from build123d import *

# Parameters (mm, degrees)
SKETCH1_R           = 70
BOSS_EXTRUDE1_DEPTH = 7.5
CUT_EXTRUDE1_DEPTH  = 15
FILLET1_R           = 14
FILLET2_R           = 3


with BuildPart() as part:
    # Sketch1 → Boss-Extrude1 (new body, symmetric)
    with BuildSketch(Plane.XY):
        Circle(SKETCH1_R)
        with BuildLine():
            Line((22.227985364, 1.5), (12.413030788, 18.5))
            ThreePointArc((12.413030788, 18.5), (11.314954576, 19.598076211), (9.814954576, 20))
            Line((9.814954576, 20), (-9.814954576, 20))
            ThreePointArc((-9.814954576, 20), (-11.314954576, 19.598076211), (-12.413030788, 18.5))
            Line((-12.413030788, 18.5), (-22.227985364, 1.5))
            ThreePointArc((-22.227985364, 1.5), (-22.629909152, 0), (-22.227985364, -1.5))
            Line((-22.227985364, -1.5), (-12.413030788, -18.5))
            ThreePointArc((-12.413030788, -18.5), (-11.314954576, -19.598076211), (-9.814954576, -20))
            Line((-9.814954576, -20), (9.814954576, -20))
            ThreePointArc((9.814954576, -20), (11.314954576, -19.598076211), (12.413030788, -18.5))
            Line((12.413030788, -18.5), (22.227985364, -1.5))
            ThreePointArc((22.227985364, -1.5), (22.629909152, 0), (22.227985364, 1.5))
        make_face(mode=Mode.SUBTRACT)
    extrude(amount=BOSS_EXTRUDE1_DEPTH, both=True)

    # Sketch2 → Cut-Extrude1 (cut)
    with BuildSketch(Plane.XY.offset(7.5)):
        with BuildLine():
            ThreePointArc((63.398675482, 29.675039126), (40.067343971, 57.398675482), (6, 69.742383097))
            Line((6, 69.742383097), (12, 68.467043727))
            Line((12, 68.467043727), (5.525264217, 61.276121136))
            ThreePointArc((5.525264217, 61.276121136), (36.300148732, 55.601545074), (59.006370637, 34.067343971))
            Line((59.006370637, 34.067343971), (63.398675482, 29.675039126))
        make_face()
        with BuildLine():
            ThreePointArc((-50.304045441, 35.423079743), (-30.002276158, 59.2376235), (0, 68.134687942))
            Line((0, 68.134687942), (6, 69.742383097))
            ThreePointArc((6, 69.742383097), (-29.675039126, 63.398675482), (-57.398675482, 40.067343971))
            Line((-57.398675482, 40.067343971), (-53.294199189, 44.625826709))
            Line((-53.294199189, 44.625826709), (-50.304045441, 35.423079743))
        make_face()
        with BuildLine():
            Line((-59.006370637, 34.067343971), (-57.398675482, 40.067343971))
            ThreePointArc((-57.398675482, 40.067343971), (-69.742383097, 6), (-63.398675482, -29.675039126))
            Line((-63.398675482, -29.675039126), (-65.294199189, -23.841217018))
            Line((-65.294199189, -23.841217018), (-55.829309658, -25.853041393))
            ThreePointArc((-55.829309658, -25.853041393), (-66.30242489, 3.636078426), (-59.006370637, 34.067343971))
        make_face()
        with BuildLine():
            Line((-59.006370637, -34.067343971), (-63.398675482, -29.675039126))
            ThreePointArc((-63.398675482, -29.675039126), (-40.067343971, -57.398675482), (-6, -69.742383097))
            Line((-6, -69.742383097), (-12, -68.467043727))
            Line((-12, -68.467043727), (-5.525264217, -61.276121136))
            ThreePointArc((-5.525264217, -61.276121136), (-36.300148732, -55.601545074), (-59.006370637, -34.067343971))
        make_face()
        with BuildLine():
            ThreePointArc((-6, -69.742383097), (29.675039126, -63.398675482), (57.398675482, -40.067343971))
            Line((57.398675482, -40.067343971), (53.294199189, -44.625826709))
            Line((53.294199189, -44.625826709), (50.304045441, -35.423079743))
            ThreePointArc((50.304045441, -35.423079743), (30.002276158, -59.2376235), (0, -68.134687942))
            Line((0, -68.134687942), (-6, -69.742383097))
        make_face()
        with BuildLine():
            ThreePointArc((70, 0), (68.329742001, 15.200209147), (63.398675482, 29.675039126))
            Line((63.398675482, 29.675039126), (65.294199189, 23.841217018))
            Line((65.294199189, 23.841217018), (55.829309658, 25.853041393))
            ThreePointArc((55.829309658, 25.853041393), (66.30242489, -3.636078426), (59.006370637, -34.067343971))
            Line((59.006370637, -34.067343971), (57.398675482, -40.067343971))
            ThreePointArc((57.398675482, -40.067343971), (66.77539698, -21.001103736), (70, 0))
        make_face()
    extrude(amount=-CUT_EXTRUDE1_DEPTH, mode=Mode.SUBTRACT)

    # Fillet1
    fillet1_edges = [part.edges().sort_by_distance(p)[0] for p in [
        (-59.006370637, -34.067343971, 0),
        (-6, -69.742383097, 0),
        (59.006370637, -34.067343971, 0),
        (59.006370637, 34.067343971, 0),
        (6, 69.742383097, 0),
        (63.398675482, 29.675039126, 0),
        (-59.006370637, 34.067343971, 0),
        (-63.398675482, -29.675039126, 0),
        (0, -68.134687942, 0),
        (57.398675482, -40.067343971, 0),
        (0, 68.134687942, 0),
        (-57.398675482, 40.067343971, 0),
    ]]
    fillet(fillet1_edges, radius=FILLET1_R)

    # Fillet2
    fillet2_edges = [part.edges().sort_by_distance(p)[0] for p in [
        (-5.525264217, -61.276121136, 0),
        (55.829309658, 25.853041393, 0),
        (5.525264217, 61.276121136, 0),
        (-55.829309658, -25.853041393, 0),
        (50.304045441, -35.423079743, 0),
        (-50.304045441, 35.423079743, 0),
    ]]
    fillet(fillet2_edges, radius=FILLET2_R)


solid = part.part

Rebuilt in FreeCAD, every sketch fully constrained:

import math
import FreeCAD as App
import Part
import Sketcher
from FreeCAD import Vector
Q = App.Units.Quantity


def edges_at(feature, points):
    """Names of the edges that pass closest to the given points."""
    edges = feature.Shape.Edges
    near = lambda p: min(range(len(edges)), key=lambda i: edges[i].distToShape(Part.Vertex(*p))[0])
    return sorted({f"Edge{near(p) + 1}" for p in points})

doc = App.newDocument("Part")
params = doc.addObject("Spreadsheet::Sheet", "Params")
for row, (alias, value) in enumerate([
    ("sketch1_diameter", "140 mm"),
    ("sketch1_radius", "3 mm"),
    ("pad1_length", "15 mm"),
    ("sketch2_radius", "70 mm"),
    ("pocket1_length", "15 mm"),
    ("fillet_radius", "14 mm"),
    ("fillet2_radius", "3 mm"),
], start=1):
    params.set(f"A{row}", alias)
    params.set(f"B{row}", "=" + value)
    params.setAlias(f"B{row}", alias)

body = doc.addObject("PartDesign::Body", "Body")

# Sketch on XY plane
sketch1 = doc.addObject("Sketcher::SketchObject", "Sketch")
body.addObject(sketch1)
sketch1.AttachmentSupport = (doc.XY_Plane, [""])
sketch1.MapMode = "FlatFace"
sketch1.addGeometry(Part.Circle(Vector(0, 0, 0), Vector(0, 0, 1), 70), False)
sketch1.addGeometry(Part.LineSegment(Vector(12.413031, 18.5, 0), Vector(22.227985, 1.5, 0)), False)
sketch1.addGeometry(Part.ArcOfCircle(Part.Circle(Vector(19.629909, 0, 0), Vector(0, 0, 1), 3), math.radians(-30), math.radians(30)), False)
sketch1.addGeometry(Part.LineSegment(Vector(22.227985, -1.5, 0), Vector(12.413031, -18.5, 0)), False)
sketch1.addGeometry(Part.ArcOfCircle(Part.Circle(Vector(9.814955, -17, 0), Vector(0, 0, 1), 3), math.radians(-90), math.radians(-30)), False)
sketch1.addGeometry(Part.LineSegment(Vector(9.814955, -20, 0), Vector(-9.814955, -20, 0)), False)
sketch1.addGeometry(Part.ArcOfCircle(Part.Circle(Vector(-9.814955, -17, 0), Vector(0, 0, 1), 3), math.radians(-150), math.radians(-90)), False)
sketch1.addGeometry(Part.LineSegment(Vector(-12.413031, -18.5, 0), Vector(-22.227985, -1.5, 0)), False)
sketch1.addGeometry(Part.ArcOfCircle(Part.Circle(Vector(-19.629909, 0, 0), Vector(0, 0, 1), 3), math.radians(150), math.radians(210)), False)
sketch1.addGeometry(Part.LineSegment(Vector(-22.227985, 1.5, 0), Vector(-12.413031, 18.5, 0)), False)
sketch1.addGeometry(Part.ArcOfCircle(Part.Circle(Vector(-9.814955, 17, 0), Vector(0, 0, 1), 3), math.radians(90), math.radians(150)), False)
sketch1.addGeometry(Part.LineSegment(Vector(-9.814955, 20, 0), Vector(9.814955, 20, 0)), False)
sketch1.addGeometry(Part.ArcOfCircle(Part.Circle(Vector(9.814955, 17, 0), Vector(0, 0, 1), 3), math.radians(30), math.radians(90)), False)
sketch1.addConstraint(Sketcher.Constraint("Tangent", 1, 2, 2, 2))
sketch1.addConstraint(Sketcher.Constraint("Tangent", 2, 1, 3, 1))
sketch1.addConstraint(Sketcher.Constraint("Tangent", 3, 2, 4, 2))
sketch1.addConstraint(Sketcher.Constraint("Tangent", 4, 1, 5, 1))
sketch1.addConstraint(Sketcher.Constraint("Tangent", 5, 2, 6, 2))
sketch1.addConstraint(Sketcher.Constraint("Tangent", 6, 1, 7, 1))
sketch1.addConstraint(Sketcher.Constraint("Tangent", 7, 2, 8, 2))
sketch1.addConstraint(Sketcher.Constraint("Tangent", 8, 1, 9, 1))
sketch1.addConstraint(Sketcher.Constraint("Tangent", 9, 2, 10, 2))
sketch1.addConstraint(Sketcher.Constraint("Tangent", 10, 1, 11, 1))
sketch1.addConstraint(Sketcher.Constraint("Tangent", 11, 2, 12, 2))
sketch1.addConstraint(Sketcher.Constraint("Tangent", 12, 1, 1, 1))
sketch1.addConstraint(Sketcher.Constraint("Horizontal", 5))
sketch1.addConstraint(Sketcher.Constraint("Horizontal", 11))
sketch1.addConstraint(Sketcher.Constraint("Coincident", 0, 3, -1, 1))
sketch1.addConstraint(Sketcher.Constraint("Equal", 2, 4))
sketch1.addConstraint(Sketcher.Constraint("Equal", 4, 6))
sketch1.addConstraint(Sketcher.Constraint("Equal", 6, 8))
sketch1.addConstraint(Sketcher.Constraint("Equal", 8, 10))
sketch1.addConstraint(Sketcher.Constraint("Equal", 10, 12))
sketch1.addConstraint(Sketcher.Constraint("Symmetric", 2, 3, 8, 3, -1, 1))
sketch1.addConstraint(Sketcher.Constraint("Symmetric", 4, 3, 10, 3, -1, 1))
sketch1.addConstraint(Sketcher.Constraint("Symmetric", 3, 2, 6, 1, -2))
sketch1.addConstraint(Sketcher.Constraint("Parallel", 1, 7))
sketch1.addConstraint(Sketcher.Constraint("Diameter", 0, 140.0))
sketch1.addConstraint(Sketcher.Constraint("Radius", 2, 3.0))
sketch1.addConstraint(Sketcher.Constraint("Angle", 1, Q("-60 deg")))
sketch1.addConstraint(Sketcher.Constraint("DistanceY", 4, 3, -1, 1, 17.0))
sketch1.addConstraint(Sketcher.Constraint("DistanceX", 5, 2, 5, 1, 19.629909))
sketch1.setExpression("Constraints[24]", "Params.sketch1_diameter")
sketch1.setExpression("Constraints[25]", "Params.sketch1_radius")
pad1 = doc.addObject("PartDesign::Pad", "Pad")
body.addObject(pad1)
pad1.Profile = sketch1
pad1.setExpression("Length", "Params.pad1_length")
pad1.Midplane = True

# Sketch on XY plane
sketch2 = doc.addObject("Sketcher::SketchObject", "Sketch001")
body.addObject(sketch2)
sketch2.AttachmentSupport = (doc.XY_Plane, [""])
sketch2.MapMode = "FlatFace"
sketch2.AttachmentOffset = App.Placement(Vector(0, 0, 7.5), App.Rotation())
sketch2.addGeometry(Part.ArcOfCircle(Part.Circle(Vector(0, 0, 0), Vector(0, 0, 1), 70), math.radians(25.0829), math.radians(85.0829)), False)
sketch2.addGeometry(Part.LineSegment(Vector(6, 69.742383, 0), Vector(12, 68.467044, 0)), False)
sketch2.addGeometry(Part.LineSegment(Vector(12, 68.467044, 0), Vector(5.525264, 61.276121, 0)), False)
sketch2.addGeometry(Part.ArcOfCircle(Part.Circle(Vector(11.344933, 6.55, 0), Vector(0, 0, 1), 55.034688), math.radians(30), math.radians(96.070118)), False)
sketch2.addGeometry(Part.LineSegment(Vector(59.006371, 34.067344, 0), Vector(63.398675, 29.675039, 0)), False)
sketch2.addGeometry(Part.ArcOfCircle(Part.Circle(Vector(0, 13.1, 0), Vector(0, 0, 1), 55.034688), math.radians(90), math.radians(156.070118)), False)
sketch2.addGeometry(Part.LineSegment(Vector(0, 68.134688, 0), Vector(6, 69.742383, 0)), False)
sketch2.addGeometry(Part.ArcOfCircle(Part.Circle(Vector(0, 0, 0), Vector(0, 0, 1), 70), math.radians(85.0829), math.radians(145.0829)), False)
sketch2.addGeometry(Part.LineSegment(Vector(-57.398675, 40.067344, 0), Vector(-53.294199, 44.625827, 0)), False)
sketch2.addGeometry(Part.LineSegment(Vector(-53.294199, 44.625827, 0), Vector(-50.304045, 35.42308, 0)), False)
sketch2.addGeometry(Part.LineSegment(Vector(-59.006371, 34.067344, 0), Vector(-57.398675, 40.067344, 0)), False)
sketch2.addGeometry(Part.ArcOfCircle(Part.Circle(Vector(0, 0, 0), Vector(0, 0, 1), 70), math.radians(145.0829), math.radians(205.0829)), False)
sketch2.addGeometry(Part.LineSegment(Vector(-63.398675, -29.675039, 0), Vector(-65.294199, -23.841217, 0)), False)
sketch2.addGeometry(Part.LineSegment(Vector(-65.294199, -23.841217, 0), Vector(-55.82931, -25.853041, 0)), False)
sketch2.addGeometry(Part.ArcOfCircle(Part.Circle(Vector(-11.344933, 6.55, 0), Vector(0, 0, 1), 55.034688), math.radians(150), math.radians(216.070118)), False)
sketch2.addGeometry(Part.LineSegment(Vector(-59.006371, -34.067344, 0), Vector(-63.398675, -29.675039, 0)), False)
sketch2.addGeometry(Part.ArcOfCircle(Part.Circle(Vector(0, 0, 0), Vector(0, 0, 1), 70), math.radians(-154.9171), math.radians(-94.9171)), False)
sketch2.addGeometry(Part.LineSegment(Vector(-6, -69.742383, 0), Vector(-12, -68.467044, 0)), False)
sketch2.addGeometry(Part.LineSegment(Vector(-12, -68.467044, 0), Vector(-5.525264, -61.276121, 0)), False)
sketch2.addGeometry(Part.ArcOfCircle(Part.Circle(Vector(-11.344933, -6.55, 0), Vector(0, 0, 1), 55.034688), math.radians(-150), math.radians(-83.929882)), False)
sketch2.addGeometry(Part.ArcOfCircle(Part.Circle(Vector(0, 0, 0), Vector(0, 0, 1), 70), math.radians(-94.9171), math.radians(-34.9171)), False)
sketch2.addGeometry(Part.LineSegment(Vector(57.398675, -40.067344, 0), Vector(53.294199, -44.625827, 0)), False)
sketch2.addGeometry(Part.LineSegment(Vector(53.294199, -44.625827, 0), Vector(50.304045, -35.42308, 0)), False)
sketch2.addGeometry(Part.ArcOfCircle(Part.Circle(Vector(0, -13.1, 0), Vector(0, 0, 1), 55.034688), math.radians(-90), math.radians(-23.929882)), False)
sketch2.addGeometry(Part.LineSegment(Vector(0, -68.134688, 0), Vector(-6, -69.742383, 0)), False)
sketch2.addGeometry(Part.ArcOfCircle(Part.Circle(Vector(0, 0, 0), Vector(0, 0, 1), 70), math.radians(0), math.radians(25.0829)), False)
sketch2.addGeometry(Part.LineSegment(Vector(63.398675, 29.675039, 0), Vector(65.294199, 23.841217, 0)), False)
sketch2.addGeometry(Part.LineSegment(Vector(65.294199, 23.841217, 0), Vector(55.82931, 25.853041, 0)), False)
sketch2.addGeometry(Part.ArcOfCircle(Part.Circle(Vector(11.344933, -6.55, 0), Vector(0, 0, 1), 55.034688), math.radians(-30), math.radians(36.070118)), False)
sketch2.addGeometry(Part.LineSegment(Vector(59.006371, -34.067344, 0), Vector(57.398675, -40.067344, 0)), False)
sketch2.addGeometry(Part.ArcOfCircle(Part.Circle(Vector(0, 0, 0), Vector(0, 0, 1), 70), math.radians(-34.9171), math.radians(0)), False)
sketch2.addConstraint(Sketcher.Constraint("Coincident", 0, 2, 1, 1))
sketch2.addConstraint(Sketcher.Constraint("Coincident", 1, 2, 2, 1))
sketch2.addConstraint(Sketcher.Constraint("Coincident", 2, 2, 3, 2))
sketch2.addConstraint(Sketcher.Constraint("Coincident", 3, 1, 4, 1))
sketch2.addConstraint(Sketcher.Constraint("Coincident", 4, 2, 0, 1))
sketch2.addConstraint(Sketcher.Constraint("Coincident", 5, 1, 6, 1))
sketch2.addConstraint(Sketcher.Constraint("Coincident", 6, 2, 7, 1))
sketch2.addConstraint(Sketcher.Constraint("Coincident", 7, 2, 8, 1))
sketch2.addConstraint(Sketcher.Constraint("Coincident", 8, 2, 9, 1))
sketch2.addConstraint(Sketcher.Constraint("Coincident", 9, 2, 5, 2))
sketch2.addConstraint(Sketcher.Constraint("Coincident", 10, 2, 11, 1))
sketch2.addConstraint(Sketcher.Constraint("Coincident", 11, 2, 12, 1))
sketch2.addConstraint(Sketcher.Constraint("Coincident", 12, 2, 13, 1))
sketch2.addConstraint(Sketcher.Constraint("Coincident", 13, 2, 14, 2))
sketch2.addConstraint(Sketcher.Constraint("Coincident", 14, 1, 10, 1))
sketch2.addConstraint(Sketcher.Constraint("Coincident", 15, 2, 16, 1))
sketch2.addConstraint(Sketcher.Constraint("Coincident", 16, 2, 17, 1))
sketch2.addConstraint(Sketcher.Constraint("Coincident", 17, 2, 18, 1))
sketch2.addConstraint(Sketcher.Constraint("Coincident", 18, 2, 19, 2))
sketch2.addConstraint(Sketcher.Constraint("Coincident", 19, 1, 15, 1))
sketch2.addConstraint(Sketcher.Constraint("Coincident", 20, 2, 21, 1))
sketch2.addConstraint(Sketcher.Constraint("Coincident", 21, 2, 22, 1))
sketch2.addConstraint(Sketcher.Constraint("Coincident", 22, 2, 23, 2))
sketch2.addConstraint(Sketcher.Constraint("Coincident", 23, 1, 24, 1))
sketch2.addConstraint(Sketcher.Constraint("Coincident", 24, 2, 20, 1))
sketch2.addConstraint(Sketcher.Constraint("Coincident", 25, 2, 26, 1))
sketch2.addConstraint(Sketcher.Constraint("Coincident", 26, 2, 27, 1))
sketch2.addConstraint(Sketcher.Constraint("Coincident", 27, 2, 28, 2))
sketch2.addConstraint(Sketcher.Constraint("Coincident", 28, 1, 29, 1))
sketch2.addConstraint(Sketcher.Constraint("Coincident", 29, 2, 30, 1))
sketch2.addConstraint(Sketcher.Constraint("Tangent", 30, 2, 25, 1))
sketch2.addConstraint(Sketcher.Constraint("Coincident", 0, 3, -1, 1))
sketch2.addConstraint(Sketcher.Constraint("Coincident", 7, 3, -1, 1))
sketch2.addConstraint(Sketcher.Constraint("Coincident", 11, 3, -1, 1))
sketch2.addConstraint(Sketcher.Constraint("Coincident", 16, 3, -1, 1))
sketch2.addConstraint(Sketcher.Constraint("Coincident", 20, 3, -1, 1))
sketch2.addConstraint(Sketcher.Constraint("Coincident", 25, 3, -1, 1))
sketch2.addConstraint(Sketcher.Constraint("Coincident", 6, 2, 0, 2))
sketch2.addConstraint(Sketcher.Constraint("Coincident", 10, 2, 7, 2))
sketch2.addConstraint(Sketcher.Constraint("Coincident", 15, 2, 11, 2))
sketch2.addConstraint(Sketcher.Constraint("Coincident", 24, 2, 16, 2))
sketch2.addConstraint(Sketcher.Constraint("Coincident", 25, 2, 4, 2))
sketch2.addConstraint(Sketcher.Constraint("Coincident", 29, 2, 20, 2))
sketch2.addConstraint(Sketcher.Constraint("Equal", 3, 5))
sketch2.addConstraint(Sketcher.Constraint("Equal", 5, 14))
sketch2.addConstraint(Sketcher.Constraint("Equal", 14, 19))
sketch2.addConstraint(Sketcher.Constraint("Equal", 19, 23))
sketch2.addConstraint(Sketcher.Constraint("Equal", 23, 28))
sketch2.addConstraint(Sketcher.Constraint("Symmetric", 3, 3, 19, 3, -1, 1))
sketch2.addConstraint(Sketcher.Constraint("Symmetric", 5, 3, 23, 3, -1, 1))
sketch2.addConstraint(Sketcher.Constraint("Symmetric", 14, 3, 28, 3, -1, 1))
sketch2.addConstraint(Sketcher.Constraint("Symmetric", 1, 2, 17, 2, -1, 1))
sketch2.addConstraint(Sketcher.Constraint("Symmetric", 8, 2, 21, 2, -1, 1))
sketch2.addConstraint(Sketcher.Constraint("Symmetric", 12, 2, 26, 2, -1, 1))
sketch2.addConstraint(Sketcher.Constraint("Symmetric", 3, 3, 14, 3, -2))
sketch2.addConstraint(Sketcher.Constraint("PointOnObject", 5, 3, -2))
sketch2.addConstraint(Sketcher.Constraint("PointOnObject", 5, 1, -2))
sketch2.addConstraint(Sketcher.Constraint("PointOnObject", 23, 1, -2))
sketch2.addConstraint(Sketcher.Constraint("PointOnObject", 30, 2, -1))
sketch2.addConstraint(Sketcher.Constraint("Parallel", 2, 8))
sketch2.addConstraint(Sketcher.Constraint("Parallel", 9, 12))
sketch2.addConstraint(Sketcher.Constraint("Parallel", 1, 13))
sketch2.addConstraint(Sketcher.Constraint("Parallel", 4, 15))
sketch2.addConstraint(Sketcher.Constraint("Parallel", 13, 17))
sketch2.addConstraint(Sketcher.Constraint("Parallel", 8, 18))
sketch2.addConstraint(Sketcher.Constraint("Parallel", 18, 21))
sketch2.addConstraint(Sketcher.Constraint("Parallel", 12, 22))
sketch2.addConstraint(Sketcher.Constraint("Parallel", 22, 26))
sketch2.addConstraint(Sketcher.Constraint("Parallel", 17, 27))
sketch2.addConstraint(Sketcher.Constraint("Parallel", 10, 29))
sketch2.addConstraint(Sketcher.Constraint("Horizontal", 3, 1, 14, 1))
sketch2.addConstraint(Sketcher.Constraint("Equal", 4, 6))
sketch2.addConstraint(Sketcher.Constraint("Equal", 1, 8))
sketch2.addConstraint(Sketcher.Constraint("Equal", 2, 9))
sketch2.addConstraint(Sketcher.Constraint("Equal", 6, 10))
sketch2.addConstraint(Sketcher.Constraint("Equal", 8, 12))
sketch2.addConstraint(Sketcher.Constraint("Equal", 9, 13))
sketch2.addConstraint(Sketcher.Constraint("Radius", 0, 70.0))
sketch2.addConstraint(Sketcher.Constraint("Angle", 1, Q("-12 deg")))
sketch2.addConstraint(Sketcher.Constraint("Angle", 2, Q("-132 deg")))
sketch2.addConstraint(Sketcher.Constraint("Angle", 4, Q("-45 deg")))
sketch2.addConstraint(Sketcher.Constraint("Angle", 6, Q("15 deg")))
sketch2.addConstraint(Sketcher.Constraint("Angle", 9, Q("-72 deg")))
sketch2.addConstraint(Sketcher.Constraint("DistanceX", -1, 1, 0, 2, 6.0))
sketch2.addConstraint(Sketcher.Constraint("DistanceX", -1, 1, 1, 2, 12.0))
sketch2.addConstraint(Sketcher.Constraint("DistanceY", -1, 1, 5, 3, 13.1))
sketch2.setExpression("Constraints[77]", "Params.sketch2_radius")
pocket1 = doc.addObject("PartDesign::Pocket", "Pocket")
body.addObject(pocket1)
pocket1.Profile = sketch2
pocket1.setExpression("Length", "Params.pocket1_length")
doc.recompute()

fillet = doc.addObject("PartDesign::Fillet", "Fillet")
body.addObject(fillet)
fillet.Base = (pocket1, edges_at(pocket1, [
    (-59.006, -34.067, 0),
    (-6, -69.742, 0),
    (59.006, -34.067, 0),
    (59.006, 34.067, 0),
    (6, 69.742, 0),
    (63.399, 29.675, 0),
    (-59.006, 34.067, 0),
    (-63.399, -29.675, 0),
    (0, -68.135, 0),
    (57.399, -40.067, 0),
    (0, 68.135, 0),
    (-57.399, 40.067, 0),
]))
fillet.setExpression("Radius", "Params.fillet_radius")
doc.recompute()

fillet2 = doc.addObject("PartDesign::Fillet", "Fillet001")
body.addObject(fillet2)
fillet2.Base = (fillet, edges_at(fillet, [
    (-5.525, -61.276, 0),
    (55.829, 25.853, 0),
    (5.525, 61.276, 0),
    (-55.829, -25.853, 0),
    (50.304, -35.423, 0),
    (-50.304, 35.423, 0),
]))
fillet2.setExpression("Radius", "Params.fillet2_radius")

doc.recompute()
